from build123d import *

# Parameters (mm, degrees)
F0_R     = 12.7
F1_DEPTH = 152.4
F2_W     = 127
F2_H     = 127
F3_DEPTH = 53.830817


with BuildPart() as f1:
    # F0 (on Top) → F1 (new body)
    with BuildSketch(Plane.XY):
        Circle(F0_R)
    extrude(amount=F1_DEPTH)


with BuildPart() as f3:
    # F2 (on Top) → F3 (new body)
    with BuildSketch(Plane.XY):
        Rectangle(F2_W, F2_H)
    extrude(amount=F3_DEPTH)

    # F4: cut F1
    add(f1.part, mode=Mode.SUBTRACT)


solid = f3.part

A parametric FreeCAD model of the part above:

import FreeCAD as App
import Part
import Sketcher

V = App.Vector
Q = App.Units.Quantity

doc = App.newDocument("Part")
body = doc.addObject("PartDesign::Body", "Body")

sketch1 = body.newObject("Sketcher::SketchObject", "Sketch")
sketch1.AttachmentSupport = (doc.getObject("XY_Plane"), [""])
sketch1.MapMode = "FlatFace"
sketch1.addGeometry(Part.Circle(V(0, 0, 0), V(0, 0, 1), 13), False)
sketch1.addConstraint([
    Sketcher.Constraint("Coincident", 0, 3, -1, 1),
    Sketcher.Constraint("Diameter", 0, Q("1 in")),
])
pad1 = body.newObject("PartDesign::Pad", "Pad")
pad1.Profile = sketch1
pad1.Length = Q("6 in")
body2 = doc.addObject("PartDesign::Body", "Body001")

sketch2 = body2.newObject("Sketcher::SketchObject", "Sketch001")
sketch2.AttachmentSupport = (doc.getObject("XY_Plane001"), [""])
sketch2.MapMode = "FlatFace"
sketch2.addGeometry([
    Part.LineSegment(V(-64, 64, 0), V(-64, -64, 0)),
    Part.LineSegment(V(-64, -64, 0), V(64, -64, 0)),
    Part.LineSegment(V(64, -64, 0), V(64, 64, 0)),
    Part.LineSegment(V(64, 64, 0), V(-64, 64, 0)),
], False)
sketch2.addConstraint([
    Sketcher.Constraint("Coincident", 0, 2, 1, 1),
    Sketcher.Constraint("Coincident", 1, 2, 2, 1),
    Sketcher.Constraint("Coincident", 2, 2, 3, 1),
    Sketcher.Constraint("Coincident", 3, 2, 0, 1),
    Sketcher.Constraint("Vertical", 0),
    Sketcher.Constraint("Horizontal", 1),
    Sketcher.Constraint("Vertical", 2),
    Sketcher.Constraint("Horizontal", 3),
    Sketcher.Constraint("Symmetric", 0, 2, 2, 2, -1, 1),
    Sketcher.Constraint("Equal", 3, 0),
    Sketcher.Constraint("DistanceX", 1, 1, 1, 2, Q("5 in")),
])
pad2 = body2.newObject("PartDesign::Pad", "Pad001")
pad2.Profile = sketch2
pad2.Length = 53.830817
doc.recompute()

boolean = body2.newObject("PartDesign::Boolean", "Boolean")
boolean.Type = "Cut"
boolean.addObjects([body])

doc.recompute()
